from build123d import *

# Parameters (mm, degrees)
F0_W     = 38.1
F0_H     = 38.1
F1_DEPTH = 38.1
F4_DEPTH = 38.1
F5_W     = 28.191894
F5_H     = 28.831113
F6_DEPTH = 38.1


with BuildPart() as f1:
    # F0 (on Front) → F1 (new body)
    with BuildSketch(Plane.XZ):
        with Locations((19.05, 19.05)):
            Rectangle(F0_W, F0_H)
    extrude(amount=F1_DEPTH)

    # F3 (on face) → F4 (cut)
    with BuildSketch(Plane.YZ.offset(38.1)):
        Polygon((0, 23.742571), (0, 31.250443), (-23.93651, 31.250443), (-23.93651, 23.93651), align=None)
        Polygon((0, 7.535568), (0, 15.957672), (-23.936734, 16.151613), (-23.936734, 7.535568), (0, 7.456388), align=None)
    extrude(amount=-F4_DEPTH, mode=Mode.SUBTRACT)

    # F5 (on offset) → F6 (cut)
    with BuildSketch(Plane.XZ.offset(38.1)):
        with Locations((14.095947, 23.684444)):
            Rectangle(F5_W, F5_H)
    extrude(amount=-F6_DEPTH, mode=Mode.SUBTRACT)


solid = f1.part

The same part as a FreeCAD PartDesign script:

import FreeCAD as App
import Part
import Sketcher
from FreeCAD import Vector
Q = App.Units.Quantity


def add_polygon(sketch, points):
    """Adds a closed chain of lines whose ends are joined by coincident constraints."""
    first, n = sketch.GeometryCount, len(points)
    for a, b in zip(points, points[1:] + points[:1]):
        sketch.addGeometry(Part.LineSegment(App.Vector(*a, 0), App.Vector(*b, 0)), False)
    for i in range(n):
        sketch.addConstraint(Sketcher.Constraint("Coincident", first + i, 2, first + (i + 1) % n, 1))

doc = App.newDocument("Part")
params = doc.addObject("Spreadsheet::Sheet", "Params")
for row, (alias, value) in enumerate([
    ("sketch1_width", "1.5 in"),
    ("pad1_length", "1.5 in"),
    ("pocket1_length", "1.5 in"),
    ("pocket2_length", "1.5 in"),
], start=1):
    params.set(f"A{row}", alias)
    params.set(f"B{row}", "=" + value)
    params.setAlias(f"B{row}", alias)

body = doc.addObject("PartDesign::Body", "Body")

sketch1 = body.newObject("Sketcher::SketchObject", "Sketch")
sketch1.AttachmentSupport = (doc.getObject("XZ_Plane"), [""])
sketch1.MapMode = "FlatFace"
add_polygon(sketch1, [(0, 38), (0, 0), (38, 0), (38, 38)])
sketch1.addConstraint([
    Sketcher.Constraint("Vertical", 0),
    Sketcher.Constraint("Horizontal", 1),
    Sketcher.Constraint("Vertical", 2),
    Sketcher.Constraint("Horizontal", 3),
    Sketcher.Constraint("Coincident", 0, 2, -1, 1),
    Sketcher.Constraint("Equal", 3, 0),
    Sketcher.Constraint("DistanceX", 1, 1, 1, 2, Q("1.5 in")),
])
sketch1.setExpression("Constraints[10]", "Params.sketch1_width")
pad1 = body.newObject("PartDesign::Pad", "Pad")
pad1.Profile = sketch1
pad1.setExpression("Length", "Params.pad1_length")

sketch2 = body.newObject("Sketcher::SketchObject", "Sketch001")
sketch2.AttachmentSupport = (doc.getObject("YZ_Plane"), [""])
sketch2.MapMode = "FlatFace"
sketch2.AttachmentOffset = App.Placement(Vector(0, 0, 1.5 * 25.4), App.Rotation())
add_polygon(sketch2, [(0, 24), (0, 31), (-24, 31), (-24, 24)])
add_polygon(sketch2, [(0, 16), (-24, 16), (-24, 8), (0, 7)])
sketch2.addConstraint([
    Sketcher.Constraint("Vertical", 0),
    Sketcher.Constraint("Horizontal", 1),
    Sketcher.Constraint("Vertical", 2),
    Sketcher.Constraint("Vertical", 5),
    Sketcher.Constraint("Vertical", 7),
    Sketcher.Constraint("PointOnObject", 0, 2, -2),
    Sketcher.Constraint("PointOnObject", 6, 2, -2),
    Sketcher.Constraint("Parallel", 3, 4),
    Sketcher.Constraint("DistanceX", 1, 2, 1, 1, 23.93651),
    Sketcher.Constraint("DistanceY", 0, 1, 0, 2, 7.507872),
    Sketcher.Constraint("DistanceY", 7, 2, 3, 2, 7.784899),
    Sketcher.Constraint("Distance", 4, 23.93752),
    Sketcher.Constraint("DistanceY", 2, 2, 2, 1, 7.313933),
    Sketcher.Constraint("DistanceY", 5, 2, 5, 1, 8.616045),
    Sketcher.Constraint("DistanceY", 7, 1, 7, 2, 8.501284),
    Sketcher.Constraint("DistanceY", -1, 1, 2, 2, 23.93651),
])
pocket1 = body.newObject("PartDesign::Pocket", "Pocket")
pocket1.Profile = sketch2
pocket1.setExpression("Length", "Params.pocket1_length")

sketch3 = body.newObject("Sketcher::SketchObject", "Sketch002")
sketch3.AttachmentSupport = (doc.getObject("XZ_Plane"), [""])
sketch3.MapMode = "FlatFace"
sketch3.AttachmentOffset = App.Placement(Vector(0, 0, 1.5 * 25.4), App.Rotation())
add_polygon(sketch3, [(0, 38), (0, 9), (28, 9), (28, 38)])
sketch3.addConstraint([
    Sketcher.Constraint("Vertical", 0),
    Sketcher.Constraint("Horizontal", 1),
    Sketcher.Constraint("Vertical", 2),
    Sketcher.Constraint("Horizontal", 3),
    Sketcher.Constraint("PointOnObject", 0, 2, -2),
    Sketcher.Constraint("DistanceY", -1, 1, 2, 2, Q("1.5 in")),
    Sketcher.Constraint("DistanceX", 1, 1, 1, 2, 28.191894),
    Sketcher.Constraint("DistanceY", 0, 2, 0, 1, 28.831113),
])
pocket2 = body.newObject("PartDesign::Pocket", "Pocket001")
pocket2.Profile = sketch3
pocket2.setExpression("Length", "Params.pocket2_length")

doc.recompute()
